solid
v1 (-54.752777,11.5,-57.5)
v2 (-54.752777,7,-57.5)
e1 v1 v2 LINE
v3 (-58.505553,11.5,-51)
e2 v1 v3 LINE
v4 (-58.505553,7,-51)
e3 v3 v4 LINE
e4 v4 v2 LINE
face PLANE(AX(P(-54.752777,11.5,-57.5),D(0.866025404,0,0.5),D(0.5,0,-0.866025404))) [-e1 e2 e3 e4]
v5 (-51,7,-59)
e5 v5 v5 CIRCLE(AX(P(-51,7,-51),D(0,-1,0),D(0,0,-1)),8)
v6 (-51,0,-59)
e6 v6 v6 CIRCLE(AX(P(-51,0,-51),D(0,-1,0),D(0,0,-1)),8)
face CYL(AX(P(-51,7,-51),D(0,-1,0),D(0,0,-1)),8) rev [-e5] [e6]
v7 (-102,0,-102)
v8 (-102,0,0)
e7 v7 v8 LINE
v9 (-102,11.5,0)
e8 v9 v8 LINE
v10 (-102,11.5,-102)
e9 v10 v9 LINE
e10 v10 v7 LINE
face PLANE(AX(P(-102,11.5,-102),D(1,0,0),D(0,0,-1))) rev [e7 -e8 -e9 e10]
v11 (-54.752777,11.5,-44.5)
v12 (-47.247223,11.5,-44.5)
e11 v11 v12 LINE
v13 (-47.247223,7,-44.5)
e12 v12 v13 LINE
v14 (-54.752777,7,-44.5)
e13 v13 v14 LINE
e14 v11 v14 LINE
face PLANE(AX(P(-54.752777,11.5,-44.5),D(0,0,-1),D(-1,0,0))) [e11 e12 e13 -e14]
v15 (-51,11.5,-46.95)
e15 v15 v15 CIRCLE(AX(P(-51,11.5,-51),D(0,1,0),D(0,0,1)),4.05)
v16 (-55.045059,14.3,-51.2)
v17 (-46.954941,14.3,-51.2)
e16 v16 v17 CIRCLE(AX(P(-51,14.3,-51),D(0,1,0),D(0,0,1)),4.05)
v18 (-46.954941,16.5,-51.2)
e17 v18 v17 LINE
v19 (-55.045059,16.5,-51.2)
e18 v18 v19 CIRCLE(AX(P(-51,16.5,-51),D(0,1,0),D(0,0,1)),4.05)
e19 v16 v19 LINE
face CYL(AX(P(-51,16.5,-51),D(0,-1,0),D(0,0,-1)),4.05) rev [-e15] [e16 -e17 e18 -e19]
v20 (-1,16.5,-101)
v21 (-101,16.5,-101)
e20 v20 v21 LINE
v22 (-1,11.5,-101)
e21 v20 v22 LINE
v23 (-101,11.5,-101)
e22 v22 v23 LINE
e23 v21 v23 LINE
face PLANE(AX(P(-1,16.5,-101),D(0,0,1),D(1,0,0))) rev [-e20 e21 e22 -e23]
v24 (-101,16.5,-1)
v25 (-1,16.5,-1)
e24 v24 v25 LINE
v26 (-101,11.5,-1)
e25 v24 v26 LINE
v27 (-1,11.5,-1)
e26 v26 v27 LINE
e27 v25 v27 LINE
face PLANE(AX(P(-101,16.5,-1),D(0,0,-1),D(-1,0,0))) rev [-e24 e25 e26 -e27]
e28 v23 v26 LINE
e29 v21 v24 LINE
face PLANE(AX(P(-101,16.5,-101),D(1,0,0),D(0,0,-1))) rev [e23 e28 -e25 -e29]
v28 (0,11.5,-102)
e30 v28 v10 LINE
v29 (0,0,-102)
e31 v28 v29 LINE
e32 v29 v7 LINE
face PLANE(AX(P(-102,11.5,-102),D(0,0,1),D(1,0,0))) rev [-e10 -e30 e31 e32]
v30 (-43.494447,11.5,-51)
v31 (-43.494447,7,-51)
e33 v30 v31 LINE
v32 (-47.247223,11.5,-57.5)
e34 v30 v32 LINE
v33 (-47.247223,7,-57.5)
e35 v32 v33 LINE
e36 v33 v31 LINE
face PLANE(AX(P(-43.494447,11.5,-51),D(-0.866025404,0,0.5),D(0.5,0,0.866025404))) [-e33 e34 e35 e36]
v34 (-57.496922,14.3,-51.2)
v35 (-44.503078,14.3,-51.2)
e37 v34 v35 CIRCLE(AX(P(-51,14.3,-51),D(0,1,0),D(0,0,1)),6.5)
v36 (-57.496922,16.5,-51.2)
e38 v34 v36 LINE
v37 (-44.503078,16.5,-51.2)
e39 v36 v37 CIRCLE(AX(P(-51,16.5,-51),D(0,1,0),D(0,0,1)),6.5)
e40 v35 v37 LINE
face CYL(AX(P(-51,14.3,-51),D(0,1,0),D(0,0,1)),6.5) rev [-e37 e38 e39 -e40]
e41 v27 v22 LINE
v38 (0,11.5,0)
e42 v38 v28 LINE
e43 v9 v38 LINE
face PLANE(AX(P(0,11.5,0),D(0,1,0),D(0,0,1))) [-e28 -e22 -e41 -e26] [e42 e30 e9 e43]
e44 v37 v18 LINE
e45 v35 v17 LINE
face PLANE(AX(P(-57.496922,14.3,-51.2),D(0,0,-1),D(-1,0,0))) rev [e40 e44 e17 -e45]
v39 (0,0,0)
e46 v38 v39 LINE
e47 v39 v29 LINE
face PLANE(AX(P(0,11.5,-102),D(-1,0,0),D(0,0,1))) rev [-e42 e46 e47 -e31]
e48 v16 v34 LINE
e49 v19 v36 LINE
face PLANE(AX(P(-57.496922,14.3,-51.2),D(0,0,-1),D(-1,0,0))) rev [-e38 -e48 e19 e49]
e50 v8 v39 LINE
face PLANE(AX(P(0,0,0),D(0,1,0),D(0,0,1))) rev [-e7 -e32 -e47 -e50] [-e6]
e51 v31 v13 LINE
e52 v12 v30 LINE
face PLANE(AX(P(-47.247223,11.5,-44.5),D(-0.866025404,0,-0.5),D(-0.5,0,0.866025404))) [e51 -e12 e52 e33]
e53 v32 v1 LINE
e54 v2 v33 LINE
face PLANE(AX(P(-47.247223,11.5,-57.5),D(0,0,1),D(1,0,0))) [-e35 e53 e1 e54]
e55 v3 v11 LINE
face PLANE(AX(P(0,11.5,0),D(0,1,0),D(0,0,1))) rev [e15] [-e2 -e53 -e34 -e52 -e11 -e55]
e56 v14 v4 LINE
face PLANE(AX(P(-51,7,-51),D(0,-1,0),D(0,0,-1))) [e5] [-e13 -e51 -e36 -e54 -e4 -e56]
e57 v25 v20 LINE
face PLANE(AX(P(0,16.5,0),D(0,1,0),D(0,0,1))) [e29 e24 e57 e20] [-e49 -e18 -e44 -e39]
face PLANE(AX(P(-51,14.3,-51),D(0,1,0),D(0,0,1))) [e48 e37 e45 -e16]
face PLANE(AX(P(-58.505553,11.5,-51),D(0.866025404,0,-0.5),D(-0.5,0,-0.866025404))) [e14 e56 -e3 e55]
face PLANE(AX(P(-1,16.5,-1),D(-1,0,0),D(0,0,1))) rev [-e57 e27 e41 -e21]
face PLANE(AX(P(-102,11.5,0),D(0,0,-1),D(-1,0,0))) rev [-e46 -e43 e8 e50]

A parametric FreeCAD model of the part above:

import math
import FreeCAD as App
import Part
import Sketcher
Q = App.Units.Quantity


def add_polygon(sketch, points):
    """Adds a closed chain of lines whose ends are joined by coincident constraints."""
    first, n = sketch.GeometryCount, len(points)
    for a, b in zip(points, points[1:] + points[:1]):
        sketch.addGeometry(Part.LineSegment(App.Vector(*a, 0), App.Vector(*b, 0)), False)
    for i in range(n):
        sketch.addConstraint(Sketcher.Constraint("Coincident", first + i, 2, first + (i + 1) % n, 1))

doc = App.newDocument("Part")
params = doc.addObject("Spreadsheet::Sheet", "Params")
for row, (alias, value) in enumerate([
    ("sketch1_width", "102 mm"),
    ("pad1_length", "11.5 mm"),
    ("sketch2_diameter", "8.1 mm"),
    ("sketch2_width", "100 mm"),
    ("pad2_length", "5 mm"),
    ("sketch3_diameter", "16 mm"),
    ("pocket1_length", "7 mm"),
    ("sketch4_radius", "6.5 mm"),
    ("pocket2_length", "2.2 mm"),
], start=1):
    params.set(f"A{row}", alias)
    params.set(f"B{row}", "=" + value)
    params.setAlias(f"B{row}", alias)

body = doc.addObject("PartDesign::Body", "Body")

# Sketch on XZ plane
sketch1 = body.newObject("Sketcher::SketchObject", "Sketch")
sketch1.AttachmentSupport = (doc.getObject("XZ_Plane"), [""])
sketch1.MapMode = "FlatFace"
add_polygon(sketch1, [(-102, -102), (-102, 0), (0, 0), (0, -102)])  # lines 0-3
add_polygon(sketch1, [(-47, -58), (-43, -51), (-47, -44), (-55, -44), (-59, -51), (-55, -58)])  # lines 4-9
sketch1.addConstraint(Sketcher.Constraint("Vertical", 0))
sketch1.addConstraint(Sketcher.Constraint("Horizontal", 1))
sketch1.addConstraint(Sketcher.Constraint("Vertical", 2))
sketch1.addConstraint(Sketcher.Constraint("Horizontal", 3))
sketch1.addConstraint(Sketcher.Constraint("Horizontal", 6))
sketch1.addConstraint(Sketcher.Constraint("Horizontal", 9))
sketch1.addConstraint(Sketcher.Constraint("Coincident", 1, 2, -1, 1))
sketch1.addConstraint(Sketcher.Constraint("Parallel", 4, 7))
sketch1.addConstraint(Sketcher.Constraint("Parallel", 5, 8))
sketch1.addConstraint(Sketcher.Constraint("Horizontal", 4, 2, 7, 2))
sketch1.addConstraint(Sketcher.Constraint("Vertical", 6, 2, 8, 2))
sketch1.addConstraint(Sketcher.Constraint("Vertical", 5, 2, 9, 2))
sketch1.addConstraint(Sketcher.Constraint("Equal", 3, 0))
sketch1.addConstraint(Sketcher.Constraint("DistanceX", 1, 1, 1, 2, 102.0))
sketch1.addConstraint(Sketcher.Constraint("Angle", 4, Q("60 deg")))
sketch1.addConstraint(Sketcher.Constraint("DistanceY", 4, 2, -1, 1, 51.0))
sketch1.addConstraint(Sketcher.Constraint("DistanceY", 8, 2, 6, 2, 13.0))
sketch1.addConstraint(Sketcher.Constraint("DistanceX", 6, 2, 6, 1, 7.505554))
sketch1.addConstraint(Sketcher.Constraint("DistanceX", 4, 2, -1, 1, 43.494447))
sketch1.setExpression("Constraints[23]", "Params.sketch1_width")
pad1 = body.newObject("PartDesign::Pad", "Pad")
pad1.Profile = sketch1
pad1.setExpression("Length", "Params.pad1_length")
pad1.Reversed = True

# Sketch on XZ plane
sketch2 = body.newObject("Sketcher::SketchObject", "Sketch001")
sketch2.AttachmentSupport = (doc.getObject("XZ_Plane"), [""])
sketch2.MapMode = "FlatFace"
sketch2.AttachmentOffset = App.Placement(App.Vector(0, 0, -11.5), App.Rotation())
add_polygon(sketch2, [(-101, -101), (-101, -1), (-1, -1), (-1, -101)])  # lines 0-3
sketch2.addGeometry(Part.Circle(App.Vector(-51, -51, 0), App.Vector(0, 0, 1), 4), False)  # 4
sketch2.addConstraint(Sketcher.Constraint("Vertical", 0))
sketch2.addConstraint(Sketcher.Constraint("Horizontal", 1))
sketch2.addConstraint(Sketcher.Constraint("Vertical", 2))
sketch2.addConstraint(Sketcher.Constraint("Horizontal", 3))
sketch2.addConstraint(Sketcher.Constraint("Equal", 3, 0))
sketch2.addConstraint(Sketcher.Constraint("Diameter", 4, 8.1))
sketch2.addConstraint(Sketcher.Constraint("DistanceX", 1, 1, 1, 2, 100.0))
sketch2.addConstraint(Sketcher.Constraint("DistanceX", 4, 3, -1, 1, 51.0))
sketch2.addConstraint(Sketcher.Constraint("DistanceY", 4, 3, -1, 1, 51.0))
sketch2.addConstraint(Sketcher.Constraint("DistanceX", 0, 2, -1, 1, 101.0))
sketch2.addConstraint(Sketcher.Constraint("DistanceY", 0, 2, -1, 1, 1.0))
sketch2.setExpression("Constraints[9]", "Params.sketch2_diameter")
sketch2.setExpression("Constraints[10]", "Params.sketch2_width")
pad2 = body.newObject("PartDesign::Pad", "Pad001")
pad2.Profile = sketch2
pad2.setExpression("Length", "Params.pad2_length")
pad2.Reversed = True

# Sketch on XZ plane
sketch3 = body.newObject("Sketcher::SketchObject", "Sketch002")
sketch3.AttachmentSupport = (doc.getObject("XZ_Plane"), [""])
sketch3.MapMode = "FlatFace"
sketch3.addGeometry(Part.Circle(App.Vector(-51, -51, 0), App.Vector(0, 0, 1), 8), False)
sketch3.addConstraint(Sketcher.Constraint("Diameter", 0, 16.0))
sketch3.addConstraint(Sketcher.Constraint("DistanceX", 0, 3, -1, 1, 51.0))
sketch3.addConstraint(Sketcher.Constraint("DistanceY", 0, 3, -1, 1, 51.0))
sketch3.setExpression("Constraints[0]", "Params.sketch3_diameter")
pocket1 = body.newObject("PartDesign::Pocket", "Pocket")
pocket1.Profile = sketch3
pocket1.setExpression("Length", "Params.pocket1_length")

# Sketch on XZ plane
sketch4 = body.newObject("Sketcher::SketchObject", "Sketch003")
sketch4.AttachmentSupport = (doc.getObject("XZ_Plane"), [""])
sketch4.MapMode = "FlatFace"
sketch4.AttachmentOffset = App.Placement(App.Vector(0, 0, -16.5), App.Rotation())
sketch4.addGeometry(Part.LineSegment(App.Vector(-45, -51, 0), App.Vector(-57, -51, 0)), False)
sketch4.addGeometry(Part.ArcOfCircle(Part.Circle(App.Vector(-51, -51, 0), App.Vector(0, 0, 1), 6), math.radians(-2), math.radians(182)), False)
sketch4.addConstraint(Sketcher.Constraint("Coincident", 0, 1, 1, 1))
sketch4.addConstraint(Sketcher.Constraint("Coincident", 1, 2, 0, 2))
sketch4.addConstraint(Sketcher.Constraint("Horizontal", 0))
sketch4.addConstraint(Sketcher.Constraint("Radius", 1, 6.5))
sketch4.addConstraint(Sketcher.Constraint("DistanceX", 1, 3, -1, 1, 51.0))
sketch4.addConstraint(Sketcher.Constraint("DistanceY", 1, 3, -1, 1, 51.0))
sketch4.addConstraint(Sketcher.Constraint("DistanceY", 0, 1, -1, 1, 51.2))
sketch4.setExpression("Constraints[3]", "Params.sketch4_radius")
pocket2 = body.newObject("PartDesign::Pocket", "Pocket001")
pocket2.Profile = sketch4
pocket2.setExpression("Length", "Params.pocket2_length")
pocket2.Reversed = True

doc.recompute()
